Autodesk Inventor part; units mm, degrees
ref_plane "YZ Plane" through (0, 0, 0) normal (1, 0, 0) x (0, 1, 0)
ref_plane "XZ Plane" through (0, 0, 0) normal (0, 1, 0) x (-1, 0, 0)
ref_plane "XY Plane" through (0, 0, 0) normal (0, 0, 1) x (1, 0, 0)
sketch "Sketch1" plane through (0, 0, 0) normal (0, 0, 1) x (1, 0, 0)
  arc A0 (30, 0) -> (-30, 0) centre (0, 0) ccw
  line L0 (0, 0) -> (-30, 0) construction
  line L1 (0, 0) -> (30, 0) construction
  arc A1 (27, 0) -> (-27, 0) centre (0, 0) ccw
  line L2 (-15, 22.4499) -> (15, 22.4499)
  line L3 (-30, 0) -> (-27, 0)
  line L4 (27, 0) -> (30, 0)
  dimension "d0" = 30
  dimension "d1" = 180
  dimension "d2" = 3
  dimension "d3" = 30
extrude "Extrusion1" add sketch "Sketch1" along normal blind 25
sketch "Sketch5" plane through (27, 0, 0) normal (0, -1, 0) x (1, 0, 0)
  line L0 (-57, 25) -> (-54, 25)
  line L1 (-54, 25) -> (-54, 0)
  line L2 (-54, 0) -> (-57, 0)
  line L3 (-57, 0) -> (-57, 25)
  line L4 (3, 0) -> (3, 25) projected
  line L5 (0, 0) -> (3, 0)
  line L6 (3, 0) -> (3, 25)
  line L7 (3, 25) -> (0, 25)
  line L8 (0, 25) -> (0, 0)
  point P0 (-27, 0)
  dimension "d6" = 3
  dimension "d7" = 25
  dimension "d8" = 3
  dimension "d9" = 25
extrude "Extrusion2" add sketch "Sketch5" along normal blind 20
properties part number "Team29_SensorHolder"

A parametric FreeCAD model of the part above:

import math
import FreeCAD as App
import Part
import Sketcher
from FreeCAD import Vector

doc = App.newDocument("Part")
body = doc.addObject("PartDesign::Body", "Body")

# Sketch on XY plane
sketch1 = body.newObject("Sketcher::SketchObject", "Sketch")
sketch1.AttachmentSupport = (doc.getObject("XY_Plane"), [""])
sketch1.MapMode = "FlatFace"
sketch1.addGeometry([
    Part.LineSegment(Vector(27, 0, 0), Vector(30, 0, 0)),  # 0
    Part.ArcOfCircle(Part.Circle(Vector(0, 0, 0), Vector(0, 0, 1), 30), math.radians(0), math.radians(180)),  # 1
    Part.LineSegment(Vector(-30, 0, 0), Vector(-27, 0, 0)),  # 2
    Part.ArcOfCircle(Part.Circle(Vector(0, 0, 0), Vector(0, 0, 1), 27), math.radians(124), math.radians(180)),  # 3
    Part.LineSegment(Vector(-15, 22.4, 0), Vector(15, 22.4, 0)),  # 4
    Part.ArcOfCircle(Part.Circle(Vector(0, 0, 0), Vector(0, 0, 1), 27), math.radians(0), math.radians(56)),  # 5
], False)
sketch1.addConstraint([
    Sketcher.Constraint("Coincident", 0, 2, 1, 1),
    Sketcher.Constraint("Coincident", 1, 2, 2, 1),
    Sketcher.Constraint("Coincident", 2, 2, 3, 2),
    Sketcher.Constraint("Coincident", 3, 1, 4, 1),
    Sketcher.Constraint("Coincident", 4, 2, 5, 2),
    Sketcher.Constraint("Coincident", 5, 1, 0, 1),
    Sketcher.Constraint("Horizontal", 0),
    Sketcher.Constraint("Horizontal", 2),
    Sketcher.Constraint("Horizontal", 4),
    Sketcher.Constraint("Coincident", 1, 3, -1, 1),
    Sketcher.Constraint("Coincident", 3, 3, -1, 1),
    Sketcher.Constraint("Coincident", 5, 3, -1, 1),
    Sketcher.Constraint("Equal", 3, 5),
    Sketcher.Constraint("PointOnObject", 0, 2, -1),
    Sketcher.Constraint("PointOnObject", 1, 2, -1),
    Sketcher.Constraint("Radius", 1, 30.0),
    Sketcher.Constraint("DistanceX", 0, 1, 0, 2, 3.0),
    Sketcher.Constraint("DistanceX", 4, 1, 4, 2, 30.0),
])
pad1 = body.newObject("PartDesign::Pad", "Pad")
pad1.Profile = sketch1
pad1.Length = 25

# Sketch on XZ plane
sketch2 = body.newObject("Sketcher::SketchObject", "Sketch001")
sketch2.AttachmentSupport = (doc.getObject("XZ_Plane"), [""])
sketch2.MapMode = "FlatFace"
sketch2.addGeometry([
    Part.LineSegment(Vector(-27, 25, 0), Vector(-30, 25, 0)),  # 0
    Part.LineSegment(Vector(-30, 25, 0), Vector(-30, 0, 0)),  # 1
    Part.LineSegment(Vector(-30, 0, 0), Vector(-27, 0, 0)),  # 2
    Part.LineSegment(Vector(-27, 0, 0), Vector(-27, 25, 0)),  # 3
    Part.LineSegment(Vector(27, 0, 0), Vector(30, 0, 0)),  # 4
    Part.LineSegment(Vector(30, 0, 0), Vector(30, 25, 0)),  # 5
    Part.LineSegment(Vector(30, 25, 0), Vector(27, 25, 0)),  # 6
    Part.LineSegment(Vector(27, 25, 0), Vector(27, 0, 0)),  # 7
], False)
sketch2.addConstraint([
    Sketcher.Constraint("Coincident", 0, 2, 1, 1),
    Sketcher.Constraint("Coincident", 1, 2, 2, 1),
    Sketcher.Constraint("Coincident", 2, 2, 3, 1),
    Sketcher.Constraint("Coincident", 3, 2, 0, 1),
    Sketcher.Constraint("Coincident", 4, 2, 5, 1),
    Sketcher.Constraint("Coincident", 5, 2, 6, 1),
    Sketcher.Constraint("Coincident", 6, 2, 7, 1),
    Sketcher.Constraint("Coincident", 7, 2, 4, 1),
    Sketcher.Constraint("Horizontal", 0),
    Sketcher.Constraint("Vertical", 1),
    Sketcher.Constraint("Horizontal", 2),
    Sketcher.Constraint("Vertical", 3),
    Sketcher.Constraint("Horizontal", 4),
    Sketcher.Constraint("Vertical", 5),
    Sketcher.Constraint("Horizontal", 6),
    Sketcher.Constraint("Vertical", 7),
    Sketcher.Constraint("Symmetric", 1, 2, 4, 2, -1, 1),
    Sketcher.Constraint("Symmetric", 3, 2, 6, 2, -2),
    Sketcher.Constraint("PointOnObject", 1, 2, -1),
    Sketcher.Constraint("DistanceX", 0, 2, 0, 1, 3.0),
    Sketcher.Constraint("DistanceY", 1, 2, 1, 1, 25.0),
    Sketcher.Constraint("DistanceX", 0, 2, -1, 1, 30.0),
])
pad2 = body.newObject("PartDesign::Pad", "Pad001")
pad2.Profile = sketch2
pad2.Length = 20

doc.recompute()
